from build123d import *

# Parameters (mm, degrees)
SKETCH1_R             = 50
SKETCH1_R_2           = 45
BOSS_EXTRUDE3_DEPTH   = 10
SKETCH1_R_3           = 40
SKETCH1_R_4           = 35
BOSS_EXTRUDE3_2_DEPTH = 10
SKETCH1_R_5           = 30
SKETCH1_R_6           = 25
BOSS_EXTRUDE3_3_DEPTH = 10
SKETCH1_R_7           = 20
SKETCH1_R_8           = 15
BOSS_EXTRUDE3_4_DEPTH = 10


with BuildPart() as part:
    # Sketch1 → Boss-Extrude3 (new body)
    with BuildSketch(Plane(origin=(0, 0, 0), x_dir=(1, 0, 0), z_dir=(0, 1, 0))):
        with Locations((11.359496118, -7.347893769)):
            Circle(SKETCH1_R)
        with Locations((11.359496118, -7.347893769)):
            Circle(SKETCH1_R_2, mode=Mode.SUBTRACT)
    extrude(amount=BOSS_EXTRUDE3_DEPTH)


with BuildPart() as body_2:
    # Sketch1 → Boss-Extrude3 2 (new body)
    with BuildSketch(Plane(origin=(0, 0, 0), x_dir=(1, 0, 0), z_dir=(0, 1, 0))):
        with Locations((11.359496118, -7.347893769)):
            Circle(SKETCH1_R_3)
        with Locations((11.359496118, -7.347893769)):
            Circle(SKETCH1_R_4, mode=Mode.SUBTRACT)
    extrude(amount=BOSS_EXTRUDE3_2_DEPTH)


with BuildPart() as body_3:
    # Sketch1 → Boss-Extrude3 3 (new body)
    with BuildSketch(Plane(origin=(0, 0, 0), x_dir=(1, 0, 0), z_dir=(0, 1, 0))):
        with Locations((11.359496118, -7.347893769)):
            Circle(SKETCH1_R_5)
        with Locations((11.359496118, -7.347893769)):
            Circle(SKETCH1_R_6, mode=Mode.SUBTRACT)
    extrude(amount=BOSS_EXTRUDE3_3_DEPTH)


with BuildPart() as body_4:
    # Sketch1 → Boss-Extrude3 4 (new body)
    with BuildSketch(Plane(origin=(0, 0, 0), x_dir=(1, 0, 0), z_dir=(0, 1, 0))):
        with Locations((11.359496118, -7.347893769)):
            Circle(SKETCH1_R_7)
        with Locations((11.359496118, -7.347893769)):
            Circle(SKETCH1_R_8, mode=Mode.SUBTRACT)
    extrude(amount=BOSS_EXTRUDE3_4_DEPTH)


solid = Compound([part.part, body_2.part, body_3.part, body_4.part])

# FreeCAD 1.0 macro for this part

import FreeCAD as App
import Part
import Sketcher
from FreeCAD import Vector
Q = App.Units.Quantity

doc = App.newDocument("Part")
body = doc.addObject("PartDesign::Body", "Body")

# Sketch on XZ plane
sketch1 = body.newObject("Sketcher::SketchObject", "Sketch")
sketch1.AttachmentSupport = (doc.getObject("XZ_Plane"), [""])
sketch1.MapMode = "FlatFace"
sketch1.addGeometry(Part.Circle(Vector(11, 7, 0), Vector(0, 0, 1), 50), False)
sketch1.addGeometry(Part.Circle(Vector(11, 7, 0), Vector(0, 0, 1), 45), False)
sketch1.addConstraint(Sketcher.Constraint("Coincident", 1, 3, 0, 3))
sketch1.addConstraint(Sketcher.Constraint("Diameter", 0, Q("100 mm")))
sketch1.addConstraint(Sketcher.Constraint("Diameter", 1, Q("90 mm")))
sketch1.addConstraint(Sketcher.Constraint("DistanceX", -1, 1, 0, 3, Q("11.359496 mm")))
sketch1.addConstraint(Sketcher.Constraint("DistanceY", -1, 1, 0, 3, Q("7.347894 mm")))
pad1 = body.newObject("PartDesign::Pad", "Pad")
pad1.Profile = sketch1
pad1.Length = 10
pad1.Reversed = True
body2 = doc.addObject("PartDesign::Body", "Body001")

# Sketch on XZ plane
sketch2 = body2.newObject("Sketcher::SketchObject", "Sketch001")
sketch2.AttachmentSupport = (doc.getObject("XZ_Plane001"), [""])
sketch2.MapMode = "FlatFace"
sketch2.addGeometry(Part.Circle(Vector(11, 7, 0), Vector(0, 0, 1), 40), False)
sketch2.addGeometry(Part.Circle(Vector(11, 7, 0), Vector(0, 0, 1), 35), False)
sketch2.addConstraint(Sketcher.Constraint("Coincident", 1, 3, 0, 3))
sketch2.addConstraint(Sketcher.Constraint("Diameter", 0, Q("80 mm")))
sketch2.addConstraint(Sketcher.Constraint("Diameter", 1, Q("70 mm")))
sketch2.addConstraint(Sketcher.Constraint("DistanceX", -1, 1, 0, 3, Q("11.359496 mm")))
sketch2.addConstraint(Sketcher.Constraint("DistanceY", -1, 1, 0, 3, Q("7.347894 mm")))
pad2 = body2.newObject("PartDesign::Pad", "Pad001")
pad2.Profile = sketch2
pad2.Length = 10
pad2.Reversed = True
body3 = doc.addObject("PartDesign::Body", "Body002")

# Sketch on XZ plane
sketch3 = body3.newObject("Sketcher::SketchObject", "Sketch002")
sketch3.AttachmentSupport = (doc.getObject("XZ_Plane002"), [""])
sketch3.MapMode = "FlatFace"
sketch3.addGeometry(Part.Circle(Vector(11, 7, 0), Vector(0, 0, 1), 30), False)
sketch3.addGeometry(Part.Circle(Vector(11, 7, 0), Vector(0, 0, 1), 25), False)
sketch3.addConstraint(Sketcher.Constraint("Coincident", 1, 3, 0, 3))
sketch3.addConstraint(Sketcher.Constraint("Diameter", 0, Q("60 mm")))
sketch3.addConstraint(Sketcher.Constraint("Diameter", 1, Q("50 mm")))
sketch3.addConstraint(Sketcher.Constraint("DistanceX", -1, 1, 0, 3, Q("11.359496 mm")))
sketch3.addConstraint(Sketcher.Constraint("DistanceY", -1, 1, 0, 3, Q("7.347894 mm")))
pad3 = body3.newObject("PartDesign::Pad", "Pad002")
pad3.Profile = sketch3
pad3.Length = 10
pad3.Reversed = True
body4 = doc.addObject("PartDesign::Body", "Body003")

# Sketch on XZ plane
sketch4 = body4.newObject("Sketcher::SketchObject", "Sketch003")
sketch4.AttachmentSupport = (doc.getObject("XZ_Plane003"), [""])
sketch4.MapMode = "FlatFace"
sketch4.addGeometry(Part.Circle(Vector(11, 7, 0), Vector(0, 0, 1), 20), False)
sketch4.addGeometry(Part.Circle(Vector(11, 7, 0), Vector(0, 0, 1), 15), False)
sketch4.addConstraint(Sketcher.Constraint("Coincident", 1, 3, 0, 3))
sketch4.addConstraint(Sketcher.Constraint("Diameter", 0, Q("40 mm")))
sketch4.addConstraint(Sketcher.Constraint("Diameter", 1, Q("30 mm")))
sketch4.addConstraint(Sketcher.Constraint("DistanceX", -1, 1, 0, 3, Q("11.359496 mm")))
sketch4.addConstraint(Sketcher.Constraint("DistanceY", -1, 1, 0, 3, Q("7.347894 mm")))
pad4 = body4.newObject("PartDesign::Pad", "Pad003")
pad4.Profile = sketch4
pad4.Length = 10
pad4.Reversed = True

doc.recompute()
